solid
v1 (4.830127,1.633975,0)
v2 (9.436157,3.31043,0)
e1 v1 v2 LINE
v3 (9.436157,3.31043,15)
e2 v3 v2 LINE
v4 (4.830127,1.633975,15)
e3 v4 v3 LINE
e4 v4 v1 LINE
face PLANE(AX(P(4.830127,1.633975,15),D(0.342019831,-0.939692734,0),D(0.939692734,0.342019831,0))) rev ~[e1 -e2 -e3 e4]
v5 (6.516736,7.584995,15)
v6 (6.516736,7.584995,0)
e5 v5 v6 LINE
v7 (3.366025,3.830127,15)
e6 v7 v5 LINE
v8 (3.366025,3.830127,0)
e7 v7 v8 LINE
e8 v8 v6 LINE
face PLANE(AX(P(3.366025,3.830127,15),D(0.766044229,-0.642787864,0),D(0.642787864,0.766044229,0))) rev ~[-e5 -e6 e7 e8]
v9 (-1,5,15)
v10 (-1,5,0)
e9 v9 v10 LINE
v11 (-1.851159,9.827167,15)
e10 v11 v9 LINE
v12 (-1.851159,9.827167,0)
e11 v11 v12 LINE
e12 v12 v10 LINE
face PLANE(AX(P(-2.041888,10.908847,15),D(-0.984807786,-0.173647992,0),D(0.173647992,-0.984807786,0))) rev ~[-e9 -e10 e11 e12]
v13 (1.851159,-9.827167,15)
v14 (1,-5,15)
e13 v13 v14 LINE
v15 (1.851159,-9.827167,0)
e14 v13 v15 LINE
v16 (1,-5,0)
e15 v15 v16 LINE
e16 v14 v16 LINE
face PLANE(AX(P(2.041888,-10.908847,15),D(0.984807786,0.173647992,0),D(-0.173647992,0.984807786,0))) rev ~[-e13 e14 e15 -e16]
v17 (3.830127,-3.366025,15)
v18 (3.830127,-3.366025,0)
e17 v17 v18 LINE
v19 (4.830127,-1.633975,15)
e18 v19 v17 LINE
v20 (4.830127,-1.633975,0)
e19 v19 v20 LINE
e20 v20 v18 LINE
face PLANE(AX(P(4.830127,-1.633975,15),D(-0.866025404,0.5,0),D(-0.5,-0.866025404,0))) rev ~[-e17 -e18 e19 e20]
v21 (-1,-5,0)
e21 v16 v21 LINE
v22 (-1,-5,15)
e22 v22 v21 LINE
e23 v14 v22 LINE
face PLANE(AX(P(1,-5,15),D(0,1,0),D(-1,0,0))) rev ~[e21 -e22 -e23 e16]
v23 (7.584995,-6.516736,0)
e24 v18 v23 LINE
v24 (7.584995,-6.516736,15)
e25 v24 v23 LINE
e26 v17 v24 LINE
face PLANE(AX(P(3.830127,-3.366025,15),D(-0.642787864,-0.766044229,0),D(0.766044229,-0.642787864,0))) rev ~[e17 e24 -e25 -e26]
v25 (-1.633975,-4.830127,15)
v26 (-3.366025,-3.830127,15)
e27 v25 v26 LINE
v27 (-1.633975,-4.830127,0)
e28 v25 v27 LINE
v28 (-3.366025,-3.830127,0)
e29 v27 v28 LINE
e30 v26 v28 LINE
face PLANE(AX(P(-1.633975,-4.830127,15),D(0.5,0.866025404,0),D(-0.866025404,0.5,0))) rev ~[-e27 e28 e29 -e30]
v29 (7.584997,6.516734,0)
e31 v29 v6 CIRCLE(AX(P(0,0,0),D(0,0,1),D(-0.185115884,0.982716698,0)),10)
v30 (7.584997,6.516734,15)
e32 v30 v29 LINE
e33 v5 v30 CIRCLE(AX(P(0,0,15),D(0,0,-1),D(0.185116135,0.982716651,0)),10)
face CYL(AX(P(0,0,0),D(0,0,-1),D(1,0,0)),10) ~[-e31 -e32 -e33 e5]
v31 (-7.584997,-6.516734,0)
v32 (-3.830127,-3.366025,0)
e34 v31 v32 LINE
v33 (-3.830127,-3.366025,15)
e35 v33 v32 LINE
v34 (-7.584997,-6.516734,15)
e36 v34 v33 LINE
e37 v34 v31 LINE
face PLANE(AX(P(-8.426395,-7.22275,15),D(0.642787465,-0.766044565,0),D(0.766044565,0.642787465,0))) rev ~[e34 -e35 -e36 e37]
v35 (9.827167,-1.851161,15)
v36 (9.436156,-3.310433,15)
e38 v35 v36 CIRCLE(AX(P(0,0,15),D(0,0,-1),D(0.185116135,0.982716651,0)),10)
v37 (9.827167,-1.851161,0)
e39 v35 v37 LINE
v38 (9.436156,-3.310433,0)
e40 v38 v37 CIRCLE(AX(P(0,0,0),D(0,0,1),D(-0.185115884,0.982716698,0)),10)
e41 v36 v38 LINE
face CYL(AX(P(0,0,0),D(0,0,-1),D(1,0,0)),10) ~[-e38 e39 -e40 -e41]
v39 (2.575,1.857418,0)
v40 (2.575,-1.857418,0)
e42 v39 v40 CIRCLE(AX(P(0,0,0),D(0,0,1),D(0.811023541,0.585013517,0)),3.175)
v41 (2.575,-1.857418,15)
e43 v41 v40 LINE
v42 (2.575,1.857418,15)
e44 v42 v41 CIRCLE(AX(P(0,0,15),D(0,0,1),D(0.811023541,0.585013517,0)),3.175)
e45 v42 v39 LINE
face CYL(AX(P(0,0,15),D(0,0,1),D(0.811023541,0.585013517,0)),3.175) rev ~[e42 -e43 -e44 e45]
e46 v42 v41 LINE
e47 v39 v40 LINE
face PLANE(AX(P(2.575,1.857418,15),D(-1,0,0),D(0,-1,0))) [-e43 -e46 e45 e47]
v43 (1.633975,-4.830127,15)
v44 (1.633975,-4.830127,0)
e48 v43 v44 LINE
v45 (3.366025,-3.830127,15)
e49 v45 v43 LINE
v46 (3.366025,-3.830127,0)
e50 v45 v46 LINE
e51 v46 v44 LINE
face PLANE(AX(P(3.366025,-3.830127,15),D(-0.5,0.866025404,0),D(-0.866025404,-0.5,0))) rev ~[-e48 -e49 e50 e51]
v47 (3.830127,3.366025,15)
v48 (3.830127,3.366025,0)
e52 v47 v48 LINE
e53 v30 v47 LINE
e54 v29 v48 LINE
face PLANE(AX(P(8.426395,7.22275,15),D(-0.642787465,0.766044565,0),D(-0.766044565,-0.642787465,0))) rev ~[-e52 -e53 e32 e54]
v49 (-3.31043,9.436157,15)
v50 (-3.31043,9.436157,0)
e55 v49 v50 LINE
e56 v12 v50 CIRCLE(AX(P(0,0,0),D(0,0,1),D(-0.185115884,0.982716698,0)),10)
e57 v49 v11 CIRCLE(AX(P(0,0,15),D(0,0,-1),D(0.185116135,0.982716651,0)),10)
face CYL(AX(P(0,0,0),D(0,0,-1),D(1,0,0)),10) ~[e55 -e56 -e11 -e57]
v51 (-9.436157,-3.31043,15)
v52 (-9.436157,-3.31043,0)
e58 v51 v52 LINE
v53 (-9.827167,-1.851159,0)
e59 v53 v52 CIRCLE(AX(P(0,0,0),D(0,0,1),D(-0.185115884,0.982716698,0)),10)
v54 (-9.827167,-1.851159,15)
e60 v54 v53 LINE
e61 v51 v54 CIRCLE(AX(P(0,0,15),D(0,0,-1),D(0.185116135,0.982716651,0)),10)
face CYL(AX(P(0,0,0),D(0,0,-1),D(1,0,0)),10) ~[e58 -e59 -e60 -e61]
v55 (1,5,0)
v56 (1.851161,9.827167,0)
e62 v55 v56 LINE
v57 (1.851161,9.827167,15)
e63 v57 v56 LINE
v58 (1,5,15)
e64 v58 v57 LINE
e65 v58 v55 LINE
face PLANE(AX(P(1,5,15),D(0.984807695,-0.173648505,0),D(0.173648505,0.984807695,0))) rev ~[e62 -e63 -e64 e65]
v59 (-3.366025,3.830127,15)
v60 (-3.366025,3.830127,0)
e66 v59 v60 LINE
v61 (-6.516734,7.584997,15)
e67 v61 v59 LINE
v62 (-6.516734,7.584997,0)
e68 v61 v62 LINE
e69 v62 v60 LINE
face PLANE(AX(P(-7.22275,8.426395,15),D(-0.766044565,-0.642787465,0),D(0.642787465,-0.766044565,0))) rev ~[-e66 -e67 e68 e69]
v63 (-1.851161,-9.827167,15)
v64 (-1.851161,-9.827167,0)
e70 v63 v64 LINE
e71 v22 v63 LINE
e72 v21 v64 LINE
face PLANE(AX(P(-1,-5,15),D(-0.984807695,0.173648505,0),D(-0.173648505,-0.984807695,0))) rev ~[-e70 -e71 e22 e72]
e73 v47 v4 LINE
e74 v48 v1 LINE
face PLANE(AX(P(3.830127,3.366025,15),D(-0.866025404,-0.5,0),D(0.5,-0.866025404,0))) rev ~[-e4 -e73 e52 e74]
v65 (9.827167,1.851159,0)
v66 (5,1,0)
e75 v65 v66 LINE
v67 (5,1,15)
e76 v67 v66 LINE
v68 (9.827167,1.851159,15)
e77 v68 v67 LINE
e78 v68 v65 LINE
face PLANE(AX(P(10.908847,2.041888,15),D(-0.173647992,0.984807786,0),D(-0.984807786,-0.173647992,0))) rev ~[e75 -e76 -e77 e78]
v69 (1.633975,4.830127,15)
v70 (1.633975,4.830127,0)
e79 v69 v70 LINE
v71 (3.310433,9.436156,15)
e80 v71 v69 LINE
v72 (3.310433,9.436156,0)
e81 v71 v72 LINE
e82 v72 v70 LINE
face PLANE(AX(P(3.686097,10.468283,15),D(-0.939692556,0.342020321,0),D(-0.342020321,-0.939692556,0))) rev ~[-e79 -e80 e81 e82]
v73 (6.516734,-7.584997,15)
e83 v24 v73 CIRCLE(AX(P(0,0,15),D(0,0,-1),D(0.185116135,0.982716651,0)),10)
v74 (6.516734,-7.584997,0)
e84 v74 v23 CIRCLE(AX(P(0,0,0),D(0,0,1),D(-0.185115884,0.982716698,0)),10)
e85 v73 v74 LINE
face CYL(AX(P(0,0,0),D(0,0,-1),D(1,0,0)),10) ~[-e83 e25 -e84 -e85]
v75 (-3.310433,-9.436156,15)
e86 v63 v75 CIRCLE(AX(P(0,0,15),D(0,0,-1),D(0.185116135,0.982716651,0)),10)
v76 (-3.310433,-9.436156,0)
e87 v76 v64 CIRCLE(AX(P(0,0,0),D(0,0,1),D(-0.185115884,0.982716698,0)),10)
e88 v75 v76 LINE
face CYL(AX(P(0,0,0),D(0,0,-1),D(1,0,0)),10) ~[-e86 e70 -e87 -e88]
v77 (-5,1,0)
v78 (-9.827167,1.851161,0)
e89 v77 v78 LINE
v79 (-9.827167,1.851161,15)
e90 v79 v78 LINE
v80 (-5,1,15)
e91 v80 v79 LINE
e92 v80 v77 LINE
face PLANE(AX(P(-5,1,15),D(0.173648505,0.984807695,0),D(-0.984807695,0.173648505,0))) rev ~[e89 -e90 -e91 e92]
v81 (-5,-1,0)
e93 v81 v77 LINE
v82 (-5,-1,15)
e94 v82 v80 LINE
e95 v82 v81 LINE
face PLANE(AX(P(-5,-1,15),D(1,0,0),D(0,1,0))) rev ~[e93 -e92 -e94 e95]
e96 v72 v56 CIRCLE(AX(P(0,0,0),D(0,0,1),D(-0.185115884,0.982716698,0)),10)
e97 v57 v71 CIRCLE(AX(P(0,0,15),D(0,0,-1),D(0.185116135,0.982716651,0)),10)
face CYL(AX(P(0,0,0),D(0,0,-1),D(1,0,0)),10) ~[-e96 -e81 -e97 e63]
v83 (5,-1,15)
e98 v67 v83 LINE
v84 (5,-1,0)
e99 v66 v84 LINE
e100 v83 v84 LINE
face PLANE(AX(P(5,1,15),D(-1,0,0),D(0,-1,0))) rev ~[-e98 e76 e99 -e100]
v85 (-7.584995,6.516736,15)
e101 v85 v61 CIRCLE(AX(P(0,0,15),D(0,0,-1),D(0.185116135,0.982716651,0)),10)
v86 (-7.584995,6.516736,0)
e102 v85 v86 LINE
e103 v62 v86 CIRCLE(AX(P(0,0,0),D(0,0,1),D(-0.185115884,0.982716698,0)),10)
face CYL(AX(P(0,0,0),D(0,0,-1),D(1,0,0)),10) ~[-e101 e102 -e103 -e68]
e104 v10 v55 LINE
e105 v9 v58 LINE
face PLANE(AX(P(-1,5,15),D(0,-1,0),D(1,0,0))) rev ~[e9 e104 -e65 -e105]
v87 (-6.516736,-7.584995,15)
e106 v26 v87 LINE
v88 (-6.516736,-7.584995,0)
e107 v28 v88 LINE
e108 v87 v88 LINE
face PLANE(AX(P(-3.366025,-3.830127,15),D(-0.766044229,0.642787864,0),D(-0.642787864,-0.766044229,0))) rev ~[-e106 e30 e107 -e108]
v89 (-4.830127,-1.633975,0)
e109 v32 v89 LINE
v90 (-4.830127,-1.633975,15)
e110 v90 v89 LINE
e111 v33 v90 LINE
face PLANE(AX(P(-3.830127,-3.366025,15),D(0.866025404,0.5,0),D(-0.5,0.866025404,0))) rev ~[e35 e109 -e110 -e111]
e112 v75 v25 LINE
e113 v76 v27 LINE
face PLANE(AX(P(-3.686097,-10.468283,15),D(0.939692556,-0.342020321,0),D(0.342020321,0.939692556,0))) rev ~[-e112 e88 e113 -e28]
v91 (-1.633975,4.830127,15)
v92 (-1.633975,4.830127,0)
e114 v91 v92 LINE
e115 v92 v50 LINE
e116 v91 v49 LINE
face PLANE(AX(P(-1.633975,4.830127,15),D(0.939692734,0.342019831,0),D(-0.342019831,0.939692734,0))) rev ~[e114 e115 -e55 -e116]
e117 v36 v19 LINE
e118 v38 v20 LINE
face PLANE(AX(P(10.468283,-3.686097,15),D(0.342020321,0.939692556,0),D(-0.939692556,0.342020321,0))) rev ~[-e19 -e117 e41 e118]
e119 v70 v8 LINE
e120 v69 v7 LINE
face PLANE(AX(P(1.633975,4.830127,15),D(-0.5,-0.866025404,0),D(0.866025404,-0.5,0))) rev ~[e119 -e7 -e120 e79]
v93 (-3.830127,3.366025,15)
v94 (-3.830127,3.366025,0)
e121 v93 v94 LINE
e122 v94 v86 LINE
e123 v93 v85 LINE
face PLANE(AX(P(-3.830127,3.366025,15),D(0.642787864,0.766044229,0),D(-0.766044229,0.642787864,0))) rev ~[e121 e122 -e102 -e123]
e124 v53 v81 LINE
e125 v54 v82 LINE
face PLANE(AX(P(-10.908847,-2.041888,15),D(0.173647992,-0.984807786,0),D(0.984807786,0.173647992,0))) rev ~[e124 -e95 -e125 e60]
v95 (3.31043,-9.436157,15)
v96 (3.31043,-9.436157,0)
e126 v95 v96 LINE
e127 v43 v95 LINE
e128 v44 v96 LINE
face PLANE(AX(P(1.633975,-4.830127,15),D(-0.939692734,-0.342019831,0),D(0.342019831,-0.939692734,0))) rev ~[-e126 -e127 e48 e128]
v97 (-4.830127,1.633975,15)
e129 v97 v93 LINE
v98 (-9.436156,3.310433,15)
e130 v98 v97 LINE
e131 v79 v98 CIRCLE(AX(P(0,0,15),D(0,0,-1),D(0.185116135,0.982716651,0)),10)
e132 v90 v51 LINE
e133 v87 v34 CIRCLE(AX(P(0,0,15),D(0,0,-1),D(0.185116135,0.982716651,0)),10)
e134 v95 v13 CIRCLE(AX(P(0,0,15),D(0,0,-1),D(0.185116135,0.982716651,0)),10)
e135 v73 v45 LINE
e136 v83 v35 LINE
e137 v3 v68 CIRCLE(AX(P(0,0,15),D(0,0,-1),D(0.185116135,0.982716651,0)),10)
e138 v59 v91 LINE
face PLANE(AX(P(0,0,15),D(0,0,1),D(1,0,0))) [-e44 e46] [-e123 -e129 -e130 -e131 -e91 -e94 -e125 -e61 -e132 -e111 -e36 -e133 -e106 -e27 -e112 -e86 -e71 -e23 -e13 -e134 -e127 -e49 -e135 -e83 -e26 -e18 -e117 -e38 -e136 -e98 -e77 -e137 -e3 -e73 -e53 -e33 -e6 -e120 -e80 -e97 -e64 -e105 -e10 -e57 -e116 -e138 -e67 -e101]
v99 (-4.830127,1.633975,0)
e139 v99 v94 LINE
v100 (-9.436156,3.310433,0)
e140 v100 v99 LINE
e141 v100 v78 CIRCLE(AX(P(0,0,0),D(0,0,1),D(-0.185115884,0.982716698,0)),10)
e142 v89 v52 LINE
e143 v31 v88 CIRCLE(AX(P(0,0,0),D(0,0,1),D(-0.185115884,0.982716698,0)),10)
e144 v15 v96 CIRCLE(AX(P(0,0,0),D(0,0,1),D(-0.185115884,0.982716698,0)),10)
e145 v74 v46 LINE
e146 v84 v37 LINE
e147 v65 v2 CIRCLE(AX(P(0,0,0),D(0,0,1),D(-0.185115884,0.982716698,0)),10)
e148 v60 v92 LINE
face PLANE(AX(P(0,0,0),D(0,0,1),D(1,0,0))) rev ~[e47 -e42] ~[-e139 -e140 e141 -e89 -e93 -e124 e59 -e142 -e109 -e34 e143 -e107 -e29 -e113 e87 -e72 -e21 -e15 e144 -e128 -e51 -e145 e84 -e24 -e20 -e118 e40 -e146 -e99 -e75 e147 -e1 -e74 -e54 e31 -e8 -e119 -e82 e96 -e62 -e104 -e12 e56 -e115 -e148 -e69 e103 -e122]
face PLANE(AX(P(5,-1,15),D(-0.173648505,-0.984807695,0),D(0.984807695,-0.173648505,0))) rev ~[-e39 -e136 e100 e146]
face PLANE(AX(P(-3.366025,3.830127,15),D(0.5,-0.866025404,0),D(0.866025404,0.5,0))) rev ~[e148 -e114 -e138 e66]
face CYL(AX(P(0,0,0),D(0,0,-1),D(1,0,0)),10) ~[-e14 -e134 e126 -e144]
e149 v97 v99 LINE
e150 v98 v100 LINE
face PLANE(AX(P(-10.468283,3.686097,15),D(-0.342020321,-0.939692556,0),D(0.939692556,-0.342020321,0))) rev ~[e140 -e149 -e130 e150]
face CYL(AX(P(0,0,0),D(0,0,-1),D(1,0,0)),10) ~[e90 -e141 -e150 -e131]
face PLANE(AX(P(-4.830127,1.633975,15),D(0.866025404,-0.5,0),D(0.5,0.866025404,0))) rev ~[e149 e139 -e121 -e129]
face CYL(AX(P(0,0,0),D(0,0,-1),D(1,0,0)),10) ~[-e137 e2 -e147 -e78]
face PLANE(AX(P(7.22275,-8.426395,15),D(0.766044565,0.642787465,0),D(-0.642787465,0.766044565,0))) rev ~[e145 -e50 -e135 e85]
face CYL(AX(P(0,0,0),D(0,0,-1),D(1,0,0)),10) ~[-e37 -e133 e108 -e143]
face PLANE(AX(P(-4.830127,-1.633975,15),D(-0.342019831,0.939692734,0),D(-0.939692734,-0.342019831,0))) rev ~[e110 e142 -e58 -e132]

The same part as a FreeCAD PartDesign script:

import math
import FreeCAD as App
import Part
import Sketcher
Q = App.Units.Quantity


def add_polygon(sketch, points):
    """Adds a closed chain of lines whose ends are joined by coincident constraints."""
    first, n = sketch.GeometryCount, len(points)
    for a, b in zip(points, points[1:] + points[:1]):
        sketch.addGeometry(Part.LineSegment(App.Vector(*a, 0), App.Vector(*b, 0)), False)
    for i in range(n):
        sketch.addConstraint(Sketcher.Constraint("Coincident", first + i, 2, first + (i + 1) % n, 1))

doc = App.newDocument("Part")
body = doc.addObject("PartDesign::Body", "Body")

# Sketch on XY plane
sketch1 = body.newObject("Sketcher::SketchObject", "Sketch")
sketch1.AttachmentSupport = (doc.getObject("XY_Plane"), [""])
sketch1.MapMode = "FlatFace"
sketch1.addGeometry(Part.Circle(App.Vector(0, 0, 0), App.Vector(0, 0, 1), 10), False)
sketch1.addConstraint([
    Sketcher.Constraint("Coincident", 0, 3, -1, 1),
    Sketcher.Constraint("Diameter", 0, Q("20 mm")),
])
pad1 = body.newObject("PartDesign::Pad", "Pad")
pad1.Profile = sketch1
pad1.Length = 15

# Sketch on XY plane
sketch2 = body.newObject("Sketcher::SketchObject", "Sketch001")
sketch2.AttachmentSupport = (doc.getObject("XY_Plane"), [""])
sketch2.MapMode = "FlatFace"
sketch2.AttachmentOffset = App.Placement(App.Vector(0, 0, 15), App.Rotation())
sketch2.addGeometry([
    Part.ArcOfCircle(Part.Circle(App.Vector(0, 0, 0), App.Vector(0, 0, 1), 3.2), math.radians(36), math.radians(324)),
    Part.LineSegment(App.Vector(2.6, -1.9, 0), App.Vector(2.6, 1.9, 0)),
], False)
sketch2.addConstraint([
    Sketcher.Constraint("Coincident", 0, 1, 1, 2),
    Sketcher.Constraint("Coincident", 1, 1, 0, 2),
    Sketcher.Constraint("Vertical", 1),
    Sketcher.Constraint("Coincident", 0, 3, -1, 1),
    Sketcher.Constraint("Radius", 0, Q("3.175 mm")),
    Sketcher.Constraint("DistanceX", -1, 1, 0, 1, Q("2.575 mm")),
])
pocket1 = body.newObject("PartDesign::Pocket", "Pocket")
pocket1.Profile = sketch2
pocket1.Type = "ThroughAll"

# Sketch on XY plane
sketch3 = body.newObject("Sketcher::SketchObject", "Sketch002")
sketch3.AttachmentSupport = (doc.getObject("XY_Plane"), [""])
sketch3.MapMode = "FlatFace"
sketch3.AttachmentOffset = App.Placement(App.Vector(0, 0, 15), App.Rotation())
add_polygon(sketch3, [(-1, 5), (1, 5), (2, 10.9), (-2, 10.9)])  # lines 0-3
sketch3.addConstraint([
    Sketcher.Constraint("Horizontal", 0),
    Sketcher.Constraint("Horizontal", 2),
    Sketcher.Constraint("Equal", 1, 3),
    Sketcher.Constraint("DistanceX", 0, 1, 0, 2, Q("2 mm")),
    Sketcher.Constraint("Angle", 1, Q("79.999981 deg")),
    Sketcher.Constraint("Distance", 1, Q("6 mm")),
    Sketcher.Constraint("DistanceX", -1, 1, 0, 2, Q("1 mm")),
    Sketcher.Constraint("DistanceY", -1, 1, 0, 2, Q("5 mm")),
])
pocket2 = body.newObject("PartDesign::Pocket", "Pocket001")
pocket2.Profile = sketch3
pocket2.Type = "ThroughAll"
doc.recompute()

polarpattern = body.newObject("PartDesign::PolarPattern", "PolarPattern")
polarpattern.Originals = [pocket2]
polarpattern.Axis = (doc.getObject("Z_Axis"), [""])
polarpattern.Angle = 360
polarpattern.Occurrences = 12
body.Tip = polarpattern

doc.recompute()
